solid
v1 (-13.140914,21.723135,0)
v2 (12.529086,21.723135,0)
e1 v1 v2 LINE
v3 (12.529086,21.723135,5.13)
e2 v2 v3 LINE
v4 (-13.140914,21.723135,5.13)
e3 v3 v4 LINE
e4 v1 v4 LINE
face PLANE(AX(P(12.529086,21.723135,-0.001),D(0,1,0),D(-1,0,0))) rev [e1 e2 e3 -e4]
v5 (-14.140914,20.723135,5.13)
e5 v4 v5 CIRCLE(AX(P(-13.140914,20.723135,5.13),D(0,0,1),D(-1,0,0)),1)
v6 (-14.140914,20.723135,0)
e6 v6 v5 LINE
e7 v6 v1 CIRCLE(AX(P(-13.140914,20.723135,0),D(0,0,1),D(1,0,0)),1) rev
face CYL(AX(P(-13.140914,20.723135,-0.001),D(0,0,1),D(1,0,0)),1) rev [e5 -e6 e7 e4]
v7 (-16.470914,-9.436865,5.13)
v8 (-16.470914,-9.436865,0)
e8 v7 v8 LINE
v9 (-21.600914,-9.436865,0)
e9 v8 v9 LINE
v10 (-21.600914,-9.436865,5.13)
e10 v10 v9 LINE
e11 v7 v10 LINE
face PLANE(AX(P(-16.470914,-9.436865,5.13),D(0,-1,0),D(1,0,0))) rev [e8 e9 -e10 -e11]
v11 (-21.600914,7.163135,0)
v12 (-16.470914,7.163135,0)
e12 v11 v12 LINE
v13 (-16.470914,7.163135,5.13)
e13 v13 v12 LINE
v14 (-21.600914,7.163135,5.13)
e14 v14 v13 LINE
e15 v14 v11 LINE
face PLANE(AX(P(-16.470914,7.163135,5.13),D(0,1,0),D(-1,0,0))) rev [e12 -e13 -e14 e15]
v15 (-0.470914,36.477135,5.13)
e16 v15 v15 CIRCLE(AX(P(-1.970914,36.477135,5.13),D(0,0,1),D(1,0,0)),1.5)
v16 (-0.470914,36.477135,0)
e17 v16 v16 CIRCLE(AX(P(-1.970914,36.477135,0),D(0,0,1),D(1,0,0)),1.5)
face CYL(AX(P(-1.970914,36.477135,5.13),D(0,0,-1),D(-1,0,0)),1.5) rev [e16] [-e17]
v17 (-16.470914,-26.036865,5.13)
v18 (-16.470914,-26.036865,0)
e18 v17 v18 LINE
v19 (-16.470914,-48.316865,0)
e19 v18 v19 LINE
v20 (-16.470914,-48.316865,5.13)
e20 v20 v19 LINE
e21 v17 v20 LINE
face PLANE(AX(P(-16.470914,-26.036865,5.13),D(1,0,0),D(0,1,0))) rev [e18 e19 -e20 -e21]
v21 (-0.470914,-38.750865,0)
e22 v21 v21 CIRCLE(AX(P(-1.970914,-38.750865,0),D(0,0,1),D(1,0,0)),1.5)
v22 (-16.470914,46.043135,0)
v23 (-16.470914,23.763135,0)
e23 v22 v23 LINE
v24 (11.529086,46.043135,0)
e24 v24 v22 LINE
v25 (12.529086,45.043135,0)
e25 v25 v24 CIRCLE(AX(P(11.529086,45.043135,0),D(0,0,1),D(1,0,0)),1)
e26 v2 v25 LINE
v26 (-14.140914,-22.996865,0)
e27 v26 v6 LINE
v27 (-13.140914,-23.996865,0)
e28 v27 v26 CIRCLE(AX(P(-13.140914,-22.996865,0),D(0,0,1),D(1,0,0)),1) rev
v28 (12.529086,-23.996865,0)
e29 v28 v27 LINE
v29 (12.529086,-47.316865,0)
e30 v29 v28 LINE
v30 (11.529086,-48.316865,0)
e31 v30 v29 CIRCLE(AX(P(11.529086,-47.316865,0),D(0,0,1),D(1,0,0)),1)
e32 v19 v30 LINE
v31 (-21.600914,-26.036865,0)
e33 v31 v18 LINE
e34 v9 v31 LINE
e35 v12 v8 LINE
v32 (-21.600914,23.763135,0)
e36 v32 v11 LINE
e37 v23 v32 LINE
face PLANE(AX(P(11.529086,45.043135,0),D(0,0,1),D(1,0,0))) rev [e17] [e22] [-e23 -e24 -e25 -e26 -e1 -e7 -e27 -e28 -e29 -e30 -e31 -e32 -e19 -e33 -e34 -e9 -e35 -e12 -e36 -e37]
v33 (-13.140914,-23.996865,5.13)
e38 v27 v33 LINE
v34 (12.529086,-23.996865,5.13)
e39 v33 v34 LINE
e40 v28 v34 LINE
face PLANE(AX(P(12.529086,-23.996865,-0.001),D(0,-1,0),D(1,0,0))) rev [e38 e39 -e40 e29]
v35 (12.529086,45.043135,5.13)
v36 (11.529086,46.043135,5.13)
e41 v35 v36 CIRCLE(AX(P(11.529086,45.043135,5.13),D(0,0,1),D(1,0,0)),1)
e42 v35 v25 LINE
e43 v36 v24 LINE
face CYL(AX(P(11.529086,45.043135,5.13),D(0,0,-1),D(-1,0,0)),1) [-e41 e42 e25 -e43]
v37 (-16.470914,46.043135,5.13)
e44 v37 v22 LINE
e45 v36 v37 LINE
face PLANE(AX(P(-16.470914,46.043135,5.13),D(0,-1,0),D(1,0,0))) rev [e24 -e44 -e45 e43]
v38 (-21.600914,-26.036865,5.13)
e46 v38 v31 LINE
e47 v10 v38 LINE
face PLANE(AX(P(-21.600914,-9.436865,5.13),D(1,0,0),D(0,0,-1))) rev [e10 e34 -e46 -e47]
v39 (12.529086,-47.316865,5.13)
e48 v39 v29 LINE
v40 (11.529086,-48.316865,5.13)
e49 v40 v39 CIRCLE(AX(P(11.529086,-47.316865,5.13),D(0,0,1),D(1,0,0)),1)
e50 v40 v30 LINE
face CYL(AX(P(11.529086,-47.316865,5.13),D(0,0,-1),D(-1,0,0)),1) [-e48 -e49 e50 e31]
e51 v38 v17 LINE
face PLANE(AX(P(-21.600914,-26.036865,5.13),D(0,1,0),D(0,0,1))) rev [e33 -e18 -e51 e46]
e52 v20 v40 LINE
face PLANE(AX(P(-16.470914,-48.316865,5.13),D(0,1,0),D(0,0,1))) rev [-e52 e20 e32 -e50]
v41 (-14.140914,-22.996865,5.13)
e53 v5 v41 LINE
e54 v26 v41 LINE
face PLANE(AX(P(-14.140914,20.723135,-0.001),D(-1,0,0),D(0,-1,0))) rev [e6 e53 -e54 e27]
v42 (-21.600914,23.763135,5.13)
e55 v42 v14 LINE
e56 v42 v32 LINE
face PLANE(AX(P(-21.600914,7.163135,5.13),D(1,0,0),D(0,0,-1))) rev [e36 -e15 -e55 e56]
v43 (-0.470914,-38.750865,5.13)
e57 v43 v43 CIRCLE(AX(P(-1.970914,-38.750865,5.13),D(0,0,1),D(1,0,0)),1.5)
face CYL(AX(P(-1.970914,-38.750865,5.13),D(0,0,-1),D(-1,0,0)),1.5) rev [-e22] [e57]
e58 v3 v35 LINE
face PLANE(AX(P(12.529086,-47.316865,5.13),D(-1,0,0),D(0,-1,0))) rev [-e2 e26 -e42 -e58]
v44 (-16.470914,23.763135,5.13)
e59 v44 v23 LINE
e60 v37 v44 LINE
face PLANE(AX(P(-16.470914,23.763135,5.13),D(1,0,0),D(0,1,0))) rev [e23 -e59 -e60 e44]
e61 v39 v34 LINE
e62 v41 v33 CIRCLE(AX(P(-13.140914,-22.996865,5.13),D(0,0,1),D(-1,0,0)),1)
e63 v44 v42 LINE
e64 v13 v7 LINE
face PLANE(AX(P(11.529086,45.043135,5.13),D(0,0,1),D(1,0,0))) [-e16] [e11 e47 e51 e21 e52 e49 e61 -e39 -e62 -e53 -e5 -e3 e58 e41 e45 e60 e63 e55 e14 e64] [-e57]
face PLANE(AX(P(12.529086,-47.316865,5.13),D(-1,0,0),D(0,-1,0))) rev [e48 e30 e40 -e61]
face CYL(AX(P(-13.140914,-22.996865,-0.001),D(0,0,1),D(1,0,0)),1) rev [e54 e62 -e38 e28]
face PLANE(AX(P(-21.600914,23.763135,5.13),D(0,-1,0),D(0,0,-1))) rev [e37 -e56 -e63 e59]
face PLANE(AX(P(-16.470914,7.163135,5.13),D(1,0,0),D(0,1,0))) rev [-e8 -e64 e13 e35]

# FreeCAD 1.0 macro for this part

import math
import FreeCAD as App
import Part
import Sketcher

V = App.Vector

doc = App.newDocument("Part")
body = doc.addObject("PartDesign::Body", "Body")

# Sketch on XY plane
sketch1 = doc.addObject("Sketcher::SketchObject", "Sketch")
body.addObject(sketch1)
sketch1.AttachmentSupport = (doc.XY_Plane, [""])
sketch1.MapMode = "FlatFace"
sketch1.addGeometry([
    Part.LineSegment(V(-16.5, 7.2, 0), V(-16.5, -9.4, 0)),  # 0
    Part.LineSegment(V(-16.5, -9.4, 0), V(-21.6, -9.4, 0)),  # 1
    Part.LineSegment(V(-21.6, -9.4, 0), V(-21.6, -26, 0)),  # 2
    Part.LineSegment(V(-21.6, -26, 0), V(-16.5, -26, 0)),  # 3
    Part.LineSegment(V(-16.5, -26, 0), V(-16.5, -48.3, 0)),  # 4
    Part.LineSegment(V(-16.5, -48.3, 0), V(11.5, -48.3, 0)),  # 5
    Part.ArcOfCircle(Part.Circle(V(11.5, -47.3, 0), V(0, 0, 1), 1), math.radians(-90), math.radians(0)),  # 6
    Part.LineSegment(V(12.5, -47.3, 0), V(12.5, 45, 0)),  # 7
    Part.ArcOfCircle(Part.Circle(V(11.5, 45, 0), V(0, 0, 1), 1), math.radians(0), math.radians(90)),  # 8
    Part.LineSegment(V(11.5, 46, 0), V(-16.5, 46, 0)),  # 9
    Part.LineSegment(V(-16.5, 46, 0), V(-16.5, 23.8, 0)),  # 10
    Part.LineSegment(V(-16.5, 23.8, 0), V(-21.6, 23.8, 0)),  # 11
    Part.LineSegment(V(-21.6, 23.8, 0), V(-21.6, 7.2, 0)),  # 12
    Part.LineSegment(V(-21.6, 7.2, 0), V(-16.5, 7.2, 0)),  # 13
    Part.Circle(V(-2, -38.8, 0), V(0, 0, 1), 1.5),  # 14
    Part.Circle(V(-2, 36.5, 0), V(0, 0, 1), 1.5),  # 15
], False)
sketch1.addConstraint([
    Sketcher.Constraint("Coincident", 0, 2, 1, 1),
    Sketcher.Constraint("Coincident", 1, 2, 2, 1),
    Sketcher.Constraint("Coincident", 2, 2, 3, 1),
    Sketcher.Constraint("Coincident", 3, 2, 4, 1),
    Sketcher.Constraint("Coincident", 4, 2, 5, 1),
    Sketcher.Constraint("Tangent", 5, 2, 6, 1),
    Sketcher.Constraint("Tangent", 6, 2, 7, 1),
    Sketcher.Constraint("Tangent", 7, 2, 8, 1),
    Sketcher.Constraint("Tangent", 8, 2, 9, 1),
    Sketcher.Constraint("Coincident", 9, 2, 10, 1),
    Sketcher.Constraint("Coincident", 10, 2, 11, 1),
    Sketcher.Constraint("Coincident", 11, 2, 12, 1),
    Sketcher.Constraint("Coincident", 12, 2, 13, 1),
    Sketcher.Constraint("Coincident", 13, 2, 0, 1),
    Sketcher.Constraint("Vertical", 0),
    Sketcher.Constraint("Horizontal", 1),
    Sketcher.Constraint("Vertical", 2),
    Sketcher.Constraint("Horizontal", 3),
    Sketcher.Constraint("Vertical", 4),
    Sketcher.Constraint("Horizontal", 5),
    Sketcher.Constraint("Vertical", 7),
    Sketcher.Constraint("Horizontal", 9),
    Sketcher.Constraint("Vertical", 10),
    Sketcher.Constraint("Horizontal", 11),
    Sketcher.Constraint("Vertical", 12),
    Sketcher.Constraint("Horizontal", 13),
    Sketcher.Constraint("Equal", 6, 8),
    Sketcher.Constraint("Equal", 14, 15),
    Sketcher.Constraint("Vertical", 14, 3, 15, 3),
    Sketcher.Constraint("Vertical", 0, 2, 3, 2),
    Sketcher.Constraint("Vertical", 4, 2, 9, 2),
    Sketcher.Constraint("Vertical", 2, 2, 11, 2),
    Sketcher.Constraint("Equal", 0, 2),
    Sketcher.Constraint("Equal", 4, 10),
    Sketcher.Constraint("Equal", 2, 12),
    Sketcher.Constraint("Diameter", 14, 3.0),
    Sketcher.Constraint("Radius", 6, 1.0),
    Sketcher.Constraint("DistanceX", 5, 1, 5, 2, 28.0),
    Sketcher.Constraint("DistanceY", 0, 2, 0, 1, 16.6),
    Sketcher.Constraint("DistanceX", 1, 2, 1, 1, 5.13),
    Sketcher.Constraint("DistanceY", 4, 2, 4, 1, 22.28),
    Sketcher.Constraint("DistanceX", 14, 3, 6, 3, 13.5),
    Sketcher.Constraint("DistanceY", 6, 3, 14, 3, 8.566),
    Sketcher.Constraint("DistanceY", 15, 3, 8, 3, 8.566),
    Sketcher.Constraint("DistanceX", -1, 1, 6, 3, 11.529086),
    Sketcher.Constraint("DistanceY", 6, 3, -1, 1, 47.316865),
])
pad1 = doc.addObject("PartDesign::Pad", "Pad")
body.addObject(pad1)
pad1.Profile = sketch1
pad1.Length = 5.13

# Sketch on XY plane
sketch2 = doc.addObject("Sketcher::SketchObject", "Sketch001")
body.addObject(sketch2)
sketch2.AttachmentSupport = (doc.XY_Plane, [""])
sketch2.MapMode = "FlatFace"
sketch2.AttachmentOffset = App.Placement(V(0, 0, 5.13), App.Rotation())
sketch2.addGeometry([
    Part.LineSegment(V(12.5, 21.7, 0), V(-13.1, 21.7, 0)),  # 0
    Part.ArcOfCircle(Part.Circle(V(-13.1, 20.7, 0), V(0, 0, 1), 1), math.radians(90), math.radians(180)),  # 1
    Part.LineSegment(V(-14.1, 20.7, 0), V(-14.1, -23, 0)),  # 2
    Part.ArcOfCircle(Part.Circle(V(-13.1, -23, 0), V(0, 0, 1), 1), math.radians(180), math.radians(270)),  # 3
    Part.LineSegment(V(-13.1, -24, 0), V(12.5, -24, 0)),  # 4
    Part.LineSegment(V(12.5, -24, 0), V(12.5, 21.7, 0)),  # 5
], False)
sketch2.addConstraint([
    Sketcher.Constraint("Tangent", 0, 2, 1, 1),
    Sketcher.Constraint("Tangent", 1, 2, 2, 1),
    Sketcher.Constraint("Tangent", 2, 2, 3, 1),
    Sketcher.Constraint("Tangent", 3, 2, 4, 1),
    Sketcher.Constraint("Coincident", 4, 2, 5, 1),
    Sketcher.Constraint("Coincident", 5, 2, 0, 1),
    Sketcher.Constraint("Horizontal", 0),
    Sketcher.Constraint("Vertical", 2),
    Sketcher.Constraint("Horizontal", 4),
    Sketcher.Constraint("Vertical", 5),
    Sketcher.Constraint("Equal", 1, 3),
    Sketcher.Constraint("Radius", 1, 1.0),
    Sketcher.Constraint("DistanceX", 0, 2, 0, 1, 25.67),
    Sketcher.Constraint("DistanceY", 2, 2, 2, 1, 43.72),
    Sketcher.Constraint("DistanceX", 1, 3, -1, 1, 13.140914),
    Sketcher.Constraint("DistanceY", -1, 1, 1, 3, 20.723135),
])
pocket1 = doc.addObject("PartDesign::Pocket", "Pocket")
body.addObject(pocket1)
pocket1.Profile = sketch2
pocket1.Type = "UpToFirst"

doc.recompute()
